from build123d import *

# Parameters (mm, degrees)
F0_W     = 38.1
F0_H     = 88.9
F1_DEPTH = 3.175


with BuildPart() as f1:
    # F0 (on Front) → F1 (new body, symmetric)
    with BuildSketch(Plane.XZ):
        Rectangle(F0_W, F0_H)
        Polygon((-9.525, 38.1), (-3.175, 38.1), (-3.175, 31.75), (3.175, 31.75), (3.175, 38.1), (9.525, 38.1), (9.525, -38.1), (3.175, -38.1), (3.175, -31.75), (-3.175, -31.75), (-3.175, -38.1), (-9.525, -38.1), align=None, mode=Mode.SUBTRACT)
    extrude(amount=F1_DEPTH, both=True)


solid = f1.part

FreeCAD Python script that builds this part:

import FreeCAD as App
import Part
import Sketcher
from FreeCAD import Vector
Q = App.Units.Quantity

doc = App.newDocument("Part")
params = doc.addObject("Spreadsheet::Sheet", "Params")
for row, (alias, value) in enumerate([
    ("sketch1_height", "3 in"),
    ("sketch1_width", "1.5 in"),
    ("sketch1_height2", "3.5 in"),
    ("pad1_length", "0.25 in"),
], start=1):
    params.set(f"A{row}", alias)
    params.set(f"B{row}", "=" + value)
    params.setAlias(f"B{row}", alias)

body = doc.addObject("PartDesign::Body", "Body")

# Sketch on XZ plane
sketch1 = body.newObject("Sketcher::SketchObject", "Sketch")
sketch1.AttachmentSupport = (doc.getObject("XZ_Plane"), [""])
sketch1.MapMode = "FlatFace"
sketch1.addGeometry(Part.LineSegment(Vector(-19, 44, 0), Vector(-19, -44, 0)), False)
sketch1.addGeometry(Part.LineSegment(Vector(-19, -44, 0), Vector(19, -44, 0)), False)
sketch1.addGeometry(Part.LineSegment(Vector(19, -44, 0), Vector(19, 44, 0)), False)
sketch1.addGeometry(Part.LineSegment(Vector(19, 44, 0), Vector(-19, 44, 0)), False)
sketch1.addGeometry(Part.LineSegment(Vector(-10, -38, 0), Vector(-10, 38, 0)), False)
sketch1.addGeometry(Part.LineSegment(Vector(-10, 38, 0), Vector(-3, 38, 0)), False)
sketch1.addGeometry(Part.LineSegment(Vector(-3, 38, 0), Vector(-3, 32, 0)), False)
sketch1.addGeometry(Part.LineSegment(Vector(-3, 32, 0), Vector(3, 32, 0)), False)
sketch1.addGeometry(Part.LineSegment(Vector(3, 32, 0), Vector(3, 38, 0)), False)
sketch1.addGeometry(Part.LineSegment(Vector(3, 38, 0), Vector(10, 38, 0)), False)
sketch1.addGeometry(Part.LineSegment(Vector(10, 38, 0), Vector(10, -38, 0)), False)
sketch1.addGeometry(Part.LineSegment(Vector(10, -38, 0), Vector(3, -38, 0)), False)
sketch1.addGeometry(Part.LineSegment(Vector(3, -38, 0), Vector(3, -32, 0)), False)
sketch1.addGeometry(Part.LineSegment(Vector(3, -32, 0), Vector(-3, -32, 0)), False)
sketch1.addGeometry(Part.LineSegment(Vector(-3, -32, 0), Vector(-3, -38, 0)), False)
sketch1.addGeometry(Part.LineSegment(Vector(-3, -38, 0), Vector(-10, -38, 0)), False)
sketch1.addConstraint(Sketcher.Constraint("Coincident", 0, 2, 1, 1))
sketch1.addConstraint(Sketcher.Constraint("Coincident", 1, 2, 2, 1))
sketch1.addConstraint(Sketcher.Constraint("Coincident", 2, 2, 3, 1))
sketch1.addConstraint(Sketcher.Constraint("Coincident", 3, 2, 0, 1))
sketch1.addConstraint(Sketcher.Constraint("Coincident", 4, 2, 5, 1))
sketch1.addConstraint(Sketcher.Constraint("Coincident", 5, 2, 6, 1))
sketch1.addConstraint(Sketcher.Constraint("Coincident", 6, 2, 7, 1))
sketch1.addConstraint(Sketcher.Constraint("Coincident", 7, 2, 8, 1))
sketch1.addConstraint(Sketcher.Constraint("Coincident", 8, 2, 9, 1))
sketch1.addConstraint(Sketcher.Constraint("Coincident", 9, 2, 10, 1))
sketch1.addConstraint(Sketcher.Constraint("Coincident", 10, 2, 11, 1))
sketch1.addConstraint(Sketcher.Constraint("Coincident", 11, 2, 12, 1))
sketch1.addConstraint(Sketcher.Constraint("Coincident", 12, 2, 13, 1))
sketch1.addConstraint(Sketcher.Constraint("Coincident", 13, 2, 14, 1))
sketch1.addConstraint(Sketcher.Constraint("Coincident", 14, 2, 15, 1))
sketch1.addConstraint(Sketcher.Constraint("Coincident", 15, 2, 4, 1))
sketch1.addConstraint(Sketcher.Constraint("Vertical", 0))
sketch1.addConstraint(Sketcher.Constraint("Horizontal", 1))
sketch1.addConstraint(Sketcher.Constraint("Vertical", 2))
sketch1.addConstraint(Sketcher.Constraint("Horizontal", 3))
sketch1.addConstraint(Sketcher.Constraint("Vertical", 4))
sketch1.addConstraint(Sketcher.Constraint("Horizontal", 5))
sketch1.addConstraint(Sketcher.Constraint("Vertical", 6))
sketch1.addConstraint(Sketcher.Constraint("Horizontal", 7))
sketch1.addConstraint(Sketcher.Constraint("Vertical", 8))
sketch1.addConstraint(Sketcher.Constraint("Horizontal", 9))
sketch1.addConstraint(Sketcher.Constraint("Vertical", 10))
sketch1.addConstraint(Sketcher.Constraint("Horizontal", 11))
sketch1.addConstraint(Sketcher.Constraint("Vertical", 12))
sketch1.addConstraint(Sketcher.Constraint("Horizontal", 13))
sketch1.addConstraint(Sketcher.Constraint("Vertical", 14))
sketch1.addConstraint(Sketcher.Constraint("Horizontal", 15))
sketch1.addConstraint(Sketcher.Constraint("Symmetric", 0, 2, 2, 2, -1, 1))
sketch1.addConstraint(Sketcher.Constraint("Symmetric", 4, 2, 10, 2, -1, 1))
sketch1.addConstraint(Sketcher.Constraint("Symmetric", 6, 2, 12, 2, -1, 1))
sketch1.addConstraint(Sketcher.Constraint("Symmetric", 8, 2, 14, 2, -1, 1))
sketch1.addConstraint(Sketcher.Constraint("Symmetric", 5, 2, 8, 2, -2))
sketch1.addConstraint(Sketcher.Constraint("Equal", 5, 7))
sketch1.addConstraint(Sketcher.Constraint("Equal", 15, 6))
sketch1.addConstraint(Sketcher.Constraint("DistanceY", 4, 1, 4, 2, Q("3 in")))
sketch1.addConstraint(Sketcher.Constraint("DistanceX", 1, 1, 1, 2, Q("1.5 in")))
sketch1.addConstraint(Sketcher.Constraint("DistanceY", 0, 2, 0, 1, Q("3.5 in")))
sketch1.addConstraint(Sketcher.Constraint("DistanceY", 0, 2, 6, 2, Q("3 in")))
sketch1.setExpression("Constraints[39]", "Params.sketch1_height")
sketch1.setExpression("Constraints[40]", "Params.sketch1_width")
sketch1.setExpression("Constraints[41]", "Params.sketch1_height2")
pad1 = body.newObject("PartDesign::Pad", "Pad")
pad1.Profile = sketch1
pad1.setExpression("Length", "Params.pad1_length")
pad1.Midplane = True

doc.recompute()
